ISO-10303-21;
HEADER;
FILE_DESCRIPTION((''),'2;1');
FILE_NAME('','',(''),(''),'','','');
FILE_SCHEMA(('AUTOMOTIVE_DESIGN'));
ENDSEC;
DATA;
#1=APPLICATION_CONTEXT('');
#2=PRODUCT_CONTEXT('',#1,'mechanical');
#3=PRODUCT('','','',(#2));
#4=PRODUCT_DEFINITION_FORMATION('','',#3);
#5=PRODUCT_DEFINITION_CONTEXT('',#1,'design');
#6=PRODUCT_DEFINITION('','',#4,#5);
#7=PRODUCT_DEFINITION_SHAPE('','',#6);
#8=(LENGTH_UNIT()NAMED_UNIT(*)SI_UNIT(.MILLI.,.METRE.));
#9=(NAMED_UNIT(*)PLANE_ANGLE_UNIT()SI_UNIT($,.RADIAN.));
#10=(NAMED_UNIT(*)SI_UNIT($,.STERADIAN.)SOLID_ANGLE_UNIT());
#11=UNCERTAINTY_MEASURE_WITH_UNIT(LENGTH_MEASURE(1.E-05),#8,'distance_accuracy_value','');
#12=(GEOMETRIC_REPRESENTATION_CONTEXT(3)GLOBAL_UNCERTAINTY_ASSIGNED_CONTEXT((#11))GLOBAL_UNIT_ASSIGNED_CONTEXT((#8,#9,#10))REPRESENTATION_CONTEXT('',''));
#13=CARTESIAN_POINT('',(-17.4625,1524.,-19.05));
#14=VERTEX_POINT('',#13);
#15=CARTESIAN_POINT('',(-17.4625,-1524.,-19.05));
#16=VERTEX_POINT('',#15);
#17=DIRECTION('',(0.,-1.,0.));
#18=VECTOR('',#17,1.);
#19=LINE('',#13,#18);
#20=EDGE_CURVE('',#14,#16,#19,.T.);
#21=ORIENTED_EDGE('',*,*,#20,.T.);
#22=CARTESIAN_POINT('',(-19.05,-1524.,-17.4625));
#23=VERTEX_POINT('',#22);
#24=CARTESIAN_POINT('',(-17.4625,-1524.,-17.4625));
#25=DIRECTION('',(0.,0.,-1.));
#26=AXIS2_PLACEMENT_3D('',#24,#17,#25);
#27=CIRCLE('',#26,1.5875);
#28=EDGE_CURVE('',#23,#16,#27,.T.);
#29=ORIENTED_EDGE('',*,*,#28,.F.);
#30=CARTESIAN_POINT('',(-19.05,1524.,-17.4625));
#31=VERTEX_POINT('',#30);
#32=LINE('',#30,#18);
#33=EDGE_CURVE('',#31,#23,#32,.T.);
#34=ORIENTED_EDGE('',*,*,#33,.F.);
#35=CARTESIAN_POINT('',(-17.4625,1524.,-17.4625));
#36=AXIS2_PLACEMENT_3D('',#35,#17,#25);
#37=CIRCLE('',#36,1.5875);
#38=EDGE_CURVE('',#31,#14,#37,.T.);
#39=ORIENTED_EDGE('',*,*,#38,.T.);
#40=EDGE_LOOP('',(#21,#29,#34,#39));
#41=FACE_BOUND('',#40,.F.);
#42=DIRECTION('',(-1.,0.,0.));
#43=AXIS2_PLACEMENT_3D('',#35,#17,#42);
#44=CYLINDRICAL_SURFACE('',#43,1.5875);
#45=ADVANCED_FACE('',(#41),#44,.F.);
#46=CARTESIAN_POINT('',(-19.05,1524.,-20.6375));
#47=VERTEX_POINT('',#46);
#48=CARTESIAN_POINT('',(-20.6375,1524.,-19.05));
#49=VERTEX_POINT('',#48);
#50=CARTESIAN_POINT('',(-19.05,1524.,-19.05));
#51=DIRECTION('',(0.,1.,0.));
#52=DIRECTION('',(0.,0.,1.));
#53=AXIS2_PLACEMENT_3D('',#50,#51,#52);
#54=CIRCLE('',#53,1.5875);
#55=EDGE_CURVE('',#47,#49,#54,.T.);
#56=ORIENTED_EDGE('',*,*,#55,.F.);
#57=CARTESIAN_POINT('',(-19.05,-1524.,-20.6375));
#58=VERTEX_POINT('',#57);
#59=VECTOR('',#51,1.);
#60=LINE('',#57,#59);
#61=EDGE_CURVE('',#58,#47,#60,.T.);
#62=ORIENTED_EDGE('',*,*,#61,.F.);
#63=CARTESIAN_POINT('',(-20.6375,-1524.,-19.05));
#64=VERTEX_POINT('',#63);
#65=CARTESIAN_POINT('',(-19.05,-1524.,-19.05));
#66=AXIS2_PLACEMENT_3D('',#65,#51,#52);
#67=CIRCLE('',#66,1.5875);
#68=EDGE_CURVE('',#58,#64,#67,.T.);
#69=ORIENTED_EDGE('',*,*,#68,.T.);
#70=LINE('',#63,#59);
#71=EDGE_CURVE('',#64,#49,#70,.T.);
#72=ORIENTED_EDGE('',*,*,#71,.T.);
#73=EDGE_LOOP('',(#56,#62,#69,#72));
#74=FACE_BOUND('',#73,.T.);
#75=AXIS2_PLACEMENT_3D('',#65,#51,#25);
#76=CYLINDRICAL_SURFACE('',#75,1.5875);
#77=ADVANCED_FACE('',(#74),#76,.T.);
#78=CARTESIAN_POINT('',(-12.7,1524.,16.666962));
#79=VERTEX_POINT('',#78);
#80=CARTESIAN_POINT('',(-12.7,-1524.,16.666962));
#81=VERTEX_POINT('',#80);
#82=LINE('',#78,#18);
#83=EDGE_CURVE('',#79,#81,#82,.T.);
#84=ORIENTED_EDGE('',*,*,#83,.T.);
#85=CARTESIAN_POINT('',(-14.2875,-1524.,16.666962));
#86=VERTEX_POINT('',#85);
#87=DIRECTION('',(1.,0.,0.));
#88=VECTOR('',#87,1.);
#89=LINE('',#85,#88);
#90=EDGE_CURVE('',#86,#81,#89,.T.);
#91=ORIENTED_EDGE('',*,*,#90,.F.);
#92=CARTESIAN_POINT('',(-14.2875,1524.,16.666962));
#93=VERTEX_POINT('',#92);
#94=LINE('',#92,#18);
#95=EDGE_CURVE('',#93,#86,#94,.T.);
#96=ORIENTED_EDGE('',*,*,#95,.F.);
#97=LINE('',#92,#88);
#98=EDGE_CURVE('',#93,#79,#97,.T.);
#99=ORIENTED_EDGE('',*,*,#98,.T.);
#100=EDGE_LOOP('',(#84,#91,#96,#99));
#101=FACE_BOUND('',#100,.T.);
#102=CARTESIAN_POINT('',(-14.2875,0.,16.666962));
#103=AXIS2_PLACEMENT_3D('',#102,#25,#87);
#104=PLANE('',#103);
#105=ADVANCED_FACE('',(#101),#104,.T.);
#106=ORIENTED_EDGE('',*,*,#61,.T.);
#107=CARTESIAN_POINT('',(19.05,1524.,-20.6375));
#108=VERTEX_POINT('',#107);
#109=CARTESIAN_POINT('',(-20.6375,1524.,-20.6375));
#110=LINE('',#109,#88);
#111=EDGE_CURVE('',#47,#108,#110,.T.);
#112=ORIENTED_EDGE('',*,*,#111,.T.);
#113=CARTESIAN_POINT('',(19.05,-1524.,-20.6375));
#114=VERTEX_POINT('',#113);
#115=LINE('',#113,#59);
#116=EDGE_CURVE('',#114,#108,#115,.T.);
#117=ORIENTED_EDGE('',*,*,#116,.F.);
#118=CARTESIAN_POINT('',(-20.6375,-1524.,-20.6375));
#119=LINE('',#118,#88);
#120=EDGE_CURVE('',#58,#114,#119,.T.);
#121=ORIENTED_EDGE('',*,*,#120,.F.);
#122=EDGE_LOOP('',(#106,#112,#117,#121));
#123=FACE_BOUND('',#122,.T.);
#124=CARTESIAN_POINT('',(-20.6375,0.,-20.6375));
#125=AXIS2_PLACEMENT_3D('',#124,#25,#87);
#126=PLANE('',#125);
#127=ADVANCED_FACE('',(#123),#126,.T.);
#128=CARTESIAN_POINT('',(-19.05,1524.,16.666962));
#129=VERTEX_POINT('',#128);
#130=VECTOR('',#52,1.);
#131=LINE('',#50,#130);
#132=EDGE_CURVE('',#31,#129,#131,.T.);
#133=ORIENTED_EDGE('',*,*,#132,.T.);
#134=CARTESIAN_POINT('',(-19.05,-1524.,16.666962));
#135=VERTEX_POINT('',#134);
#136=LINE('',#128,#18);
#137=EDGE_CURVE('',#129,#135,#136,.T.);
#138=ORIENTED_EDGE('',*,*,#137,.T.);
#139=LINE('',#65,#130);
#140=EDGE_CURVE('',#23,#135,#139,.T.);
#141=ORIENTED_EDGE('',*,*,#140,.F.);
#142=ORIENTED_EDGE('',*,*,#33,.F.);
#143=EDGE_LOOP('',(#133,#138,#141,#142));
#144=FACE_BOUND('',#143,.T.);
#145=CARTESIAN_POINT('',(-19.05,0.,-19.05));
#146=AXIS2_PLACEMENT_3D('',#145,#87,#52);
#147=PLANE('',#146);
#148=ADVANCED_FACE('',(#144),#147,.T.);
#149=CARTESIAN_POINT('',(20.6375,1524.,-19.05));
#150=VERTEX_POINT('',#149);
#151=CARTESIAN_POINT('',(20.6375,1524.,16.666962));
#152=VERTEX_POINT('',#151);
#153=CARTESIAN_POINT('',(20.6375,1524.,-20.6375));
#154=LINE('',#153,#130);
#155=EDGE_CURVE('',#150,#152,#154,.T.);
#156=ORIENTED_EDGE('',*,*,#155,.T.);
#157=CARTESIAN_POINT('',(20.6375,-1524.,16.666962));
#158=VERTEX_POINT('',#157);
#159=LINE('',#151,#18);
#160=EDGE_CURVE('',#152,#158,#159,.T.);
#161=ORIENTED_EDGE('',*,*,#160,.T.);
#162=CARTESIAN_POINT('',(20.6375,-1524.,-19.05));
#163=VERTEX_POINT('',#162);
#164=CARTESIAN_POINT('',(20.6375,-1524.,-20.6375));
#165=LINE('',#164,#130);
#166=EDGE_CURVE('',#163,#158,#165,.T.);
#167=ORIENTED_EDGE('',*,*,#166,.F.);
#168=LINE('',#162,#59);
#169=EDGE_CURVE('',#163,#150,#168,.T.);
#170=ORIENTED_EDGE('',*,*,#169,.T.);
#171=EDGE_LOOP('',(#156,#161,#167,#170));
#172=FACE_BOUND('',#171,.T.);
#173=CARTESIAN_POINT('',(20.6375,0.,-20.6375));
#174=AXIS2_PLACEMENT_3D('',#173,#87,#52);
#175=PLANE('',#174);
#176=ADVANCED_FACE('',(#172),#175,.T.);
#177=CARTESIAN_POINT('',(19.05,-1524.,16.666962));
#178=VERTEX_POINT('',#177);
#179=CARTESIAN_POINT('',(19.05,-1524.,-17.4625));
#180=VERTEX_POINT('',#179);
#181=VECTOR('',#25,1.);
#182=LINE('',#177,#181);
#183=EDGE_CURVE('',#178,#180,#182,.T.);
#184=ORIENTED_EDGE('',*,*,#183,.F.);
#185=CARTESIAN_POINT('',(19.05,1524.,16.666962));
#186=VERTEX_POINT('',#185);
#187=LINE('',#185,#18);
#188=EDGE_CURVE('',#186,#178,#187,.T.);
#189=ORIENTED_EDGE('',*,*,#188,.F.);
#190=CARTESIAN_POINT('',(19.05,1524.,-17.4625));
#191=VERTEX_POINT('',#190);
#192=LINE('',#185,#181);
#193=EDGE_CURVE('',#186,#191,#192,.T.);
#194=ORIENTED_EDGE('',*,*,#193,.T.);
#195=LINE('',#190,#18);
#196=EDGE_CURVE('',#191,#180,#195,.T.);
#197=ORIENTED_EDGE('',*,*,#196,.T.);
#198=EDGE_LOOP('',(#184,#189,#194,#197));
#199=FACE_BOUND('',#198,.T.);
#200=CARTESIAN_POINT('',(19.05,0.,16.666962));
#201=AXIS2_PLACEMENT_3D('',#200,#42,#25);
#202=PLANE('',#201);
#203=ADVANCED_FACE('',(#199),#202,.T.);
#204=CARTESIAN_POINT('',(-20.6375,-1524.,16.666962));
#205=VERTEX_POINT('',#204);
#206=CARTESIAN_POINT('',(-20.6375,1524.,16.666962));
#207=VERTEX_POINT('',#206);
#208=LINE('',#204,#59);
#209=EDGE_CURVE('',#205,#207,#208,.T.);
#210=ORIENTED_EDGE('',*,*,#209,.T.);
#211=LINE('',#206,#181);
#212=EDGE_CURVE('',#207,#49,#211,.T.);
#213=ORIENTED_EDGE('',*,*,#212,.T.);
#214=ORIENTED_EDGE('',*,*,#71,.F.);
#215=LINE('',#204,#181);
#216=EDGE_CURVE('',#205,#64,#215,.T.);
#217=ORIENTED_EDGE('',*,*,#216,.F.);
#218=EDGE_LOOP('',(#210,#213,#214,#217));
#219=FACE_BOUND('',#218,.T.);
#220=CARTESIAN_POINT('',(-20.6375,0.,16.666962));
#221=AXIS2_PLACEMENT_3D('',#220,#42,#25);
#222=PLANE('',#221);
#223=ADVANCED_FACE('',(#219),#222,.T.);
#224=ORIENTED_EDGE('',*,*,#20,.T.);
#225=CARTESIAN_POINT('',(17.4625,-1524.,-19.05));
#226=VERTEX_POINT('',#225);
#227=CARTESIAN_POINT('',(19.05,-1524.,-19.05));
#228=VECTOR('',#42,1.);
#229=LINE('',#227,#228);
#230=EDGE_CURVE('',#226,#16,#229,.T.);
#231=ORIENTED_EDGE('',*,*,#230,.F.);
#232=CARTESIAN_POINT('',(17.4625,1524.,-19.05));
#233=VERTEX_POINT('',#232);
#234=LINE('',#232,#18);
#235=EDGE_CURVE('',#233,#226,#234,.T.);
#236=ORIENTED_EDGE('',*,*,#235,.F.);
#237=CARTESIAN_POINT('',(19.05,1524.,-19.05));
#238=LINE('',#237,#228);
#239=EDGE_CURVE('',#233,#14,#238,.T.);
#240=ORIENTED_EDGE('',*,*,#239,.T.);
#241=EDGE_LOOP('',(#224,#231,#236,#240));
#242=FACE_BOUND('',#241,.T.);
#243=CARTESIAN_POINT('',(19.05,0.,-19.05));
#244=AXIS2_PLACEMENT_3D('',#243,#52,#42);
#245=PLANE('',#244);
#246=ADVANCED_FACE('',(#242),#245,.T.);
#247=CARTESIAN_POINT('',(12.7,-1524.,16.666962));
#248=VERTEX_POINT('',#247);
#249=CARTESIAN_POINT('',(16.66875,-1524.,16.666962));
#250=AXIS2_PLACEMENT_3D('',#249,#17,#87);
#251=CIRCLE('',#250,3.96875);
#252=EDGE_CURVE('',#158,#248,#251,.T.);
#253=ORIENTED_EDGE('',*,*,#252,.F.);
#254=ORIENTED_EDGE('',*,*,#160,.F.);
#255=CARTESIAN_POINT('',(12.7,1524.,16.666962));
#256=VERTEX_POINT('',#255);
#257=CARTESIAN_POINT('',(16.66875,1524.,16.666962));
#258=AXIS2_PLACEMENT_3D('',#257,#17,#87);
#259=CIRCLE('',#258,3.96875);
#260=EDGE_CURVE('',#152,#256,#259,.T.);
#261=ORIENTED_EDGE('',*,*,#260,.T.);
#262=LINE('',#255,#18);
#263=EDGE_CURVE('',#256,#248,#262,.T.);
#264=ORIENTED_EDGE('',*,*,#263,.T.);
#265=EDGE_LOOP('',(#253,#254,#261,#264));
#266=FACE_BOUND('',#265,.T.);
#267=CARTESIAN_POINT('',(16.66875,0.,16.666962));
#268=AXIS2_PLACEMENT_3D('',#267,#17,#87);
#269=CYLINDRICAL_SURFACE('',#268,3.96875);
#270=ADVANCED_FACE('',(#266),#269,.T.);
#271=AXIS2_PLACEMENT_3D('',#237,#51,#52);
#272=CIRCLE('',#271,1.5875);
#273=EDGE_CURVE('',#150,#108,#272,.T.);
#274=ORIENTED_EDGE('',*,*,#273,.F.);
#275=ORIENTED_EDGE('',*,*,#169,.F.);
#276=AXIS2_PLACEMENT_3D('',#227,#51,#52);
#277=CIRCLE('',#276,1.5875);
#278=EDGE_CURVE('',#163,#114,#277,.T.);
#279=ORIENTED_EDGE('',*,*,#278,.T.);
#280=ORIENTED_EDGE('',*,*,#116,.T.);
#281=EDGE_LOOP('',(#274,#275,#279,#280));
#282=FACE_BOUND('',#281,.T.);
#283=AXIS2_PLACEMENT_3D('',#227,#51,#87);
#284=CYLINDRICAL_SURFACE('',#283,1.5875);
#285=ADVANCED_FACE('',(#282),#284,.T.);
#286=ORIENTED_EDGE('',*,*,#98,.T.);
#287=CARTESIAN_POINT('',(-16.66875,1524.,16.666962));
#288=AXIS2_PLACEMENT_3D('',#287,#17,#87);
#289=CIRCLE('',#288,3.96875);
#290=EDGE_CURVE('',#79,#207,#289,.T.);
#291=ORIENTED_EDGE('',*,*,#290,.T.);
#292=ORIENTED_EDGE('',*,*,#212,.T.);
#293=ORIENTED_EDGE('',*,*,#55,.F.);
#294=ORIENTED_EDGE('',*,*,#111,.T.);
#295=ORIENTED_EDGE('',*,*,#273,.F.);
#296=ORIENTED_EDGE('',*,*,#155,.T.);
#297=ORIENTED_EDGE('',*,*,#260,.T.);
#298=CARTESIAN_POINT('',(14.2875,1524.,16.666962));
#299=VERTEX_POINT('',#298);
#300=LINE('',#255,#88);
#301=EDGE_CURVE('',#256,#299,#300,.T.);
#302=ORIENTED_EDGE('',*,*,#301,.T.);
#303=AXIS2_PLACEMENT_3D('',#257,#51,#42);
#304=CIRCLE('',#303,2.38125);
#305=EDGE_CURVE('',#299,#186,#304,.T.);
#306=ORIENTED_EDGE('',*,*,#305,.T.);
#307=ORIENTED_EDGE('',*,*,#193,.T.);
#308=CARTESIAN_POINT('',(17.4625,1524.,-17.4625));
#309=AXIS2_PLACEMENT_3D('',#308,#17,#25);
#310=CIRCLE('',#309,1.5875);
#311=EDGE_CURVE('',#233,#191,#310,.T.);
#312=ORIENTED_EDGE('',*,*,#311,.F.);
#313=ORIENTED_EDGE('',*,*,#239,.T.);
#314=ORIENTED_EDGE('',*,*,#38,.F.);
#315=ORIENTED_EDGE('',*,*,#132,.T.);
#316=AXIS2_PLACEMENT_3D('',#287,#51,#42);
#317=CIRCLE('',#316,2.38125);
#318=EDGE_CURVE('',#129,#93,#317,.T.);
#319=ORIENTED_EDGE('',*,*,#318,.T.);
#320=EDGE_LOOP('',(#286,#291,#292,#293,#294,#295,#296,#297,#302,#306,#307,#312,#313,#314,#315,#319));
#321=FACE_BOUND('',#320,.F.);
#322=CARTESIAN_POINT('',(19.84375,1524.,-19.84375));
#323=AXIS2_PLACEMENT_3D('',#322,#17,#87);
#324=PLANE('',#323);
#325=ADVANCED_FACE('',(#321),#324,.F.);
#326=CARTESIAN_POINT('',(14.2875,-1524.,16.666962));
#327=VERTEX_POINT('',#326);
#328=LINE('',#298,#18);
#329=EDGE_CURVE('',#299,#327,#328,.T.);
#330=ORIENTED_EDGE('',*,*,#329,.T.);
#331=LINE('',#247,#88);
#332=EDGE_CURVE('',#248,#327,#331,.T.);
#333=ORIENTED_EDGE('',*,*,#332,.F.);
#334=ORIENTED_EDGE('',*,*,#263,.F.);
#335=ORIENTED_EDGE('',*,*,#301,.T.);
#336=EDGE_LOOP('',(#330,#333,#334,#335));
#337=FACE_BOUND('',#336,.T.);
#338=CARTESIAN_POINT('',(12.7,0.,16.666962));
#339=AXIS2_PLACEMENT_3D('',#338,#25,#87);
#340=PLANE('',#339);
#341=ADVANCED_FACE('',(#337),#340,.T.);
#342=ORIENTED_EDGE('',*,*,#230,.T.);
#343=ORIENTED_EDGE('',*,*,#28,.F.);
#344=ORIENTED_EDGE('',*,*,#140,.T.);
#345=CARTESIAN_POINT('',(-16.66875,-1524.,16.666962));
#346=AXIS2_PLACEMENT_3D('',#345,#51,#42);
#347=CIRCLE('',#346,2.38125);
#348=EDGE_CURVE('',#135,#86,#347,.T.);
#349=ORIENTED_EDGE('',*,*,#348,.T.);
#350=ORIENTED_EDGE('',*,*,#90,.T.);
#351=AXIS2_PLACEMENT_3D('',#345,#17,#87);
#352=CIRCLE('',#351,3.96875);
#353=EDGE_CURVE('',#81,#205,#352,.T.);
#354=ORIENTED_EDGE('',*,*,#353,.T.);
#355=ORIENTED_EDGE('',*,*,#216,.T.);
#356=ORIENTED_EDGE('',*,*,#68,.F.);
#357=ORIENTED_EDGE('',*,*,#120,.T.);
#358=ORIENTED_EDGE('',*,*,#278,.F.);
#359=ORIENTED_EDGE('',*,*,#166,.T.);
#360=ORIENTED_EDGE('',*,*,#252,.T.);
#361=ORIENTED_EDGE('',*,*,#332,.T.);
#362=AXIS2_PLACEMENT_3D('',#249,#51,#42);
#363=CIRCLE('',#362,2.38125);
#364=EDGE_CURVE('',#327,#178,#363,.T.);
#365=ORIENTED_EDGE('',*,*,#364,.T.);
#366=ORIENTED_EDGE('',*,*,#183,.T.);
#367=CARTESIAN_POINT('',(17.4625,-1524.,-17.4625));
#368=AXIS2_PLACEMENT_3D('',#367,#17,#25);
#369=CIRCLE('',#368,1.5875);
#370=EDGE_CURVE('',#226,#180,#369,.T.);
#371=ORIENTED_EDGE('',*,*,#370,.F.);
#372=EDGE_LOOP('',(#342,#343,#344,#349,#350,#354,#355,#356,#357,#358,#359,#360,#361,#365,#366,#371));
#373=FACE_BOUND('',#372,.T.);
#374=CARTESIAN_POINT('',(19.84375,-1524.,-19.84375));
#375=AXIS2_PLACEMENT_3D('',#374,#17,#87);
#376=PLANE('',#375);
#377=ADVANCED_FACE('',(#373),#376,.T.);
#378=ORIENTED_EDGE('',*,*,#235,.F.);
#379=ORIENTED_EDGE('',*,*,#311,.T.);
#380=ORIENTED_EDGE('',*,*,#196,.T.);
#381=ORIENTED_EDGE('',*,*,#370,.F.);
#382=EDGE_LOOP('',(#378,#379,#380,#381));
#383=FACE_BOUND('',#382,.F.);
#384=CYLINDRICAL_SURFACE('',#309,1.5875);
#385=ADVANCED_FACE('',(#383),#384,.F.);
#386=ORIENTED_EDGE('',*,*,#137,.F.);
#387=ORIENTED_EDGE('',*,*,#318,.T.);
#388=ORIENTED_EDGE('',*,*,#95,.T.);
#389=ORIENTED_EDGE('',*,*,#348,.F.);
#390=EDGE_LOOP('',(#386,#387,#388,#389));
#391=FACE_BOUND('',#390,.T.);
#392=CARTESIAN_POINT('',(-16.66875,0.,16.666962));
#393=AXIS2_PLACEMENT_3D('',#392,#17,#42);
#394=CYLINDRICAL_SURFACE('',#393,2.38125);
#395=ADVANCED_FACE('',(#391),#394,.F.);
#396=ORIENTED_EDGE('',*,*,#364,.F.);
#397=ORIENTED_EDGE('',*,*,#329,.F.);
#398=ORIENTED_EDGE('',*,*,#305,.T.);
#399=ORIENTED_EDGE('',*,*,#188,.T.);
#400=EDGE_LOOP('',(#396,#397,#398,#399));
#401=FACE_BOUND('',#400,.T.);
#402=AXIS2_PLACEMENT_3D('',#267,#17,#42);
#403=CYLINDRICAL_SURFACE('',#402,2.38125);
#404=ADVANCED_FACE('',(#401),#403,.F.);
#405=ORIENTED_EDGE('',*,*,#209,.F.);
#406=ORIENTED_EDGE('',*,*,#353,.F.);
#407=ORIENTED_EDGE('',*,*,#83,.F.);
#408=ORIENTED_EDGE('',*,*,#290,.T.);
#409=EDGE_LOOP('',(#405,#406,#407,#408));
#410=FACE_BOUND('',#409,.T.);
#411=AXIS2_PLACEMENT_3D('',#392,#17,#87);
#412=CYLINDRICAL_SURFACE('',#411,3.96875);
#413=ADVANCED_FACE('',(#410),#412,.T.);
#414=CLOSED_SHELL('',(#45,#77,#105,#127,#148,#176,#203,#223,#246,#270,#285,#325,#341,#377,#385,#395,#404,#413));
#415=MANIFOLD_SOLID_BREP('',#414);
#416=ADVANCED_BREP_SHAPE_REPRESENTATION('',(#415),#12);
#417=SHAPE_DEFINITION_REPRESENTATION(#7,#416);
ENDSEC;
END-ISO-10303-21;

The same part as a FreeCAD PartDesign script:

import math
import FreeCAD as App
import Part
import Sketcher
from FreeCAD import Vector
Q = App.Units.Quantity


def edges_at(feature, points):
    """Names of the edges that pass closest to the given points."""
    edges = feature.Shape.Edges
    near = lambda p: min(range(len(edges)), key=lambda i: edges[i].distToShape(Part.Vertex(*p))[0])
    return sorted({f"Edge{near(p) + 1}" for p in points})

doc = App.newDocument("Part")
params = doc.addObject("Spreadsheet::Sheet", "Params")
for row, (alias, value) in enumerate([
    ("sketch1_width", "1.5 in"),
    ("sketch1_radius", "0.15625 in"),
    ("sketch1_radius2", "0.09375 in"),
    ("pad1_length", "120 in"),
    ("fillet_radius", "0.0625 in"),
], start=1):
    params.set(f"A{row}", alias)
    params.set(f"B{row}", "=" + value)
    params.setAlias(f"B{row}", alias)

body = doc.addObject("PartDesign::Body", "Body")

# Sketch on XZ plane
sketch1 = body.newObject("Sketcher::SketchObject", "Sketch")
sketch1.AttachmentSupport = (doc.getObject("XZ_Plane"), [""])
sketch1.MapMode = "FlatFace"
sketch1.addGeometry([
    Part.LineSegment(Vector(20.6375, -20.6375, 0), Vector(20.6375, 16.666962, 0)),  # 0
    Part.ArcOfCircle(Part.Circle(Vector(16.66875, 16.666962, 0), Vector(0, 0, 1), 3.96875), math.radians(0), math.radians(180)),  # 1
    Part.LineSegment(Vector(12.7, 16.666962, 0), Vector(14.2875, 16.666962, 0)),  # 2
    Part.ArcOfCircle(Part.Circle(Vector(16.66875, 16.666962, 0), Vector(0, 0, 1), 2.38125), math.radians(0), math.radians(180)),  # 3
    Part.LineSegment(Vector(19.05, 16.666962, 0), Vector(19.05, -19.05, 0)),  # 4
    Part.LineSegment(Vector(19.05, -19.05, 0), Vector(-19.05, -19.05, 0)),  # 5
    Part.LineSegment(Vector(-19.05, -19.05, 0), Vector(-19.05, 16.666962, 0)),  # 6
    Part.ArcOfCircle(Part.Circle(Vector(-16.66875, 16.666962, 0), Vector(0, 0, 1), 2.38125), math.radians(0), math.radians(180)),  # 7
    Part.LineSegment(Vector(-14.2875, 16.666962, 0), Vector(-12.7, 16.666962, 0)),  # 8
    Part.ArcOfCircle(Part.Circle(Vector(-16.66875, 16.666962, 0), Vector(0, 0, 1), 3.96875), math.radians(0), math.radians(180)),  # 9
    Part.LineSegment(Vector(-20.6375, 16.666962, 0), Vector(-20.6375, -20.6375, 0)),  # 10
    Part.LineSegment(Vector(-20.6375, -20.6375, 0), Vector(20.6375, -20.6375, 0)),  # 11
], False)
sketch1.addConstraint([
    Sketcher.Constraint("Tangent", 0, 2, 1, 1),
    Sketcher.Constraint("Coincident", 1, 2, 2, 1),
    Sketcher.Constraint("Coincident", 2, 2, 3, 2),
    Sketcher.Constraint("Tangent", 3, 1, 4, 1),
    Sketcher.Constraint("Coincident", 4, 2, 5, 1),
    Sketcher.Constraint("Coincident", 5, 2, 6, 1),
    Sketcher.Constraint("Tangent", 6, 2, 7, 2),
    Sketcher.Constraint("Coincident", 7, 1, 8, 1),
    Sketcher.Constraint("Coincident", 8, 2, 9, 1),
    Sketcher.Constraint("Tangent", 9, 2, 10, 1),
    Sketcher.Constraint("Coincident", 10, 2, 11, 1),
    Sketcher.Constraint("Coincident", 11, 2, 0, 1),
    Sketcher.Constraint("Vertical", 0),
    Sketcher.Constraint("Horizontal", 2),
    Sketcher.Constraint("Vertical", 4),
    Sketcher.Constraint("Horizontal", 5),
    Sketcher.Constraint("Vertical", 6),
    Sketcher.Constraint("Horizontal", 8),
    Sketcher.Constraint("Vertical", 10),
    Sketcher.Constraint("Horizontal", 11),
    Sketcher.Constraint("Coincident", 3, 3, 1, 3),
    Sketcher.Constraint("Coincident", 9, 3, 7, 3),
    Sketcher.Constraint("Equal", 3, 7),
    Sketcher.Constraint("Equal", 1, 9),
    Sketcher.Constraint("Symmetric", 1, 3, 7, 3, -2),
    Sketcher.Constraint("Horizontal", 0, 2, 1, 2),
    Sketcher.Constraint("Horizontal", 6, 2, 7, 1),
    Sketcher.Constraint("DistanceX", 5, 2, 5, 1, Q("1.5 in")),
    Sketcher.Constraint("Radius", 1, Q("0.15625 in")),
    Sketcher.Constraint("Radius", 3, Q("0.09375 in")),
    Sketcher.Constraint("DistanceY", 4, 2, -1, 1, Q("0.75 in")),
    Sketcher.Constraint("DistanceY", 10, 2, -1, 1, Q("0.8125 in")),
    Sketcher.Constraint("DistanceY", 0, 1, 0, 2, Q("37.304462 mm")),
])
sketch1.setExpression("Constraints[27]", "Params.sketch1_width")
sketch1.setExpression("Constraints[28]", "Params.sketch1_radius")
sketch1.setExpression("Constraints[29]", "Params.sketch1_radius2")
pad1 = body.newObject("PartDesign::Pad", "Pad")
pad1.Profile = sketch1
pad1.setExpression("Length", "Params.pad1_length")
pad1.Midplane = True
doc.recompute()

fillet = body.newObject("PartDesign::Fillet", "Fillet")
fillet.Base = (pad1, edges_at(pad1, [
    (-19.05, 0, -19.05),
    (19.05, 0, -19.05),
    (20.637, 0, -20.637),
    (-20.637, 0, -20.637),
]))
fillet.setExpression("Radius", "Params.fillet_radius")

doc.recompute()
